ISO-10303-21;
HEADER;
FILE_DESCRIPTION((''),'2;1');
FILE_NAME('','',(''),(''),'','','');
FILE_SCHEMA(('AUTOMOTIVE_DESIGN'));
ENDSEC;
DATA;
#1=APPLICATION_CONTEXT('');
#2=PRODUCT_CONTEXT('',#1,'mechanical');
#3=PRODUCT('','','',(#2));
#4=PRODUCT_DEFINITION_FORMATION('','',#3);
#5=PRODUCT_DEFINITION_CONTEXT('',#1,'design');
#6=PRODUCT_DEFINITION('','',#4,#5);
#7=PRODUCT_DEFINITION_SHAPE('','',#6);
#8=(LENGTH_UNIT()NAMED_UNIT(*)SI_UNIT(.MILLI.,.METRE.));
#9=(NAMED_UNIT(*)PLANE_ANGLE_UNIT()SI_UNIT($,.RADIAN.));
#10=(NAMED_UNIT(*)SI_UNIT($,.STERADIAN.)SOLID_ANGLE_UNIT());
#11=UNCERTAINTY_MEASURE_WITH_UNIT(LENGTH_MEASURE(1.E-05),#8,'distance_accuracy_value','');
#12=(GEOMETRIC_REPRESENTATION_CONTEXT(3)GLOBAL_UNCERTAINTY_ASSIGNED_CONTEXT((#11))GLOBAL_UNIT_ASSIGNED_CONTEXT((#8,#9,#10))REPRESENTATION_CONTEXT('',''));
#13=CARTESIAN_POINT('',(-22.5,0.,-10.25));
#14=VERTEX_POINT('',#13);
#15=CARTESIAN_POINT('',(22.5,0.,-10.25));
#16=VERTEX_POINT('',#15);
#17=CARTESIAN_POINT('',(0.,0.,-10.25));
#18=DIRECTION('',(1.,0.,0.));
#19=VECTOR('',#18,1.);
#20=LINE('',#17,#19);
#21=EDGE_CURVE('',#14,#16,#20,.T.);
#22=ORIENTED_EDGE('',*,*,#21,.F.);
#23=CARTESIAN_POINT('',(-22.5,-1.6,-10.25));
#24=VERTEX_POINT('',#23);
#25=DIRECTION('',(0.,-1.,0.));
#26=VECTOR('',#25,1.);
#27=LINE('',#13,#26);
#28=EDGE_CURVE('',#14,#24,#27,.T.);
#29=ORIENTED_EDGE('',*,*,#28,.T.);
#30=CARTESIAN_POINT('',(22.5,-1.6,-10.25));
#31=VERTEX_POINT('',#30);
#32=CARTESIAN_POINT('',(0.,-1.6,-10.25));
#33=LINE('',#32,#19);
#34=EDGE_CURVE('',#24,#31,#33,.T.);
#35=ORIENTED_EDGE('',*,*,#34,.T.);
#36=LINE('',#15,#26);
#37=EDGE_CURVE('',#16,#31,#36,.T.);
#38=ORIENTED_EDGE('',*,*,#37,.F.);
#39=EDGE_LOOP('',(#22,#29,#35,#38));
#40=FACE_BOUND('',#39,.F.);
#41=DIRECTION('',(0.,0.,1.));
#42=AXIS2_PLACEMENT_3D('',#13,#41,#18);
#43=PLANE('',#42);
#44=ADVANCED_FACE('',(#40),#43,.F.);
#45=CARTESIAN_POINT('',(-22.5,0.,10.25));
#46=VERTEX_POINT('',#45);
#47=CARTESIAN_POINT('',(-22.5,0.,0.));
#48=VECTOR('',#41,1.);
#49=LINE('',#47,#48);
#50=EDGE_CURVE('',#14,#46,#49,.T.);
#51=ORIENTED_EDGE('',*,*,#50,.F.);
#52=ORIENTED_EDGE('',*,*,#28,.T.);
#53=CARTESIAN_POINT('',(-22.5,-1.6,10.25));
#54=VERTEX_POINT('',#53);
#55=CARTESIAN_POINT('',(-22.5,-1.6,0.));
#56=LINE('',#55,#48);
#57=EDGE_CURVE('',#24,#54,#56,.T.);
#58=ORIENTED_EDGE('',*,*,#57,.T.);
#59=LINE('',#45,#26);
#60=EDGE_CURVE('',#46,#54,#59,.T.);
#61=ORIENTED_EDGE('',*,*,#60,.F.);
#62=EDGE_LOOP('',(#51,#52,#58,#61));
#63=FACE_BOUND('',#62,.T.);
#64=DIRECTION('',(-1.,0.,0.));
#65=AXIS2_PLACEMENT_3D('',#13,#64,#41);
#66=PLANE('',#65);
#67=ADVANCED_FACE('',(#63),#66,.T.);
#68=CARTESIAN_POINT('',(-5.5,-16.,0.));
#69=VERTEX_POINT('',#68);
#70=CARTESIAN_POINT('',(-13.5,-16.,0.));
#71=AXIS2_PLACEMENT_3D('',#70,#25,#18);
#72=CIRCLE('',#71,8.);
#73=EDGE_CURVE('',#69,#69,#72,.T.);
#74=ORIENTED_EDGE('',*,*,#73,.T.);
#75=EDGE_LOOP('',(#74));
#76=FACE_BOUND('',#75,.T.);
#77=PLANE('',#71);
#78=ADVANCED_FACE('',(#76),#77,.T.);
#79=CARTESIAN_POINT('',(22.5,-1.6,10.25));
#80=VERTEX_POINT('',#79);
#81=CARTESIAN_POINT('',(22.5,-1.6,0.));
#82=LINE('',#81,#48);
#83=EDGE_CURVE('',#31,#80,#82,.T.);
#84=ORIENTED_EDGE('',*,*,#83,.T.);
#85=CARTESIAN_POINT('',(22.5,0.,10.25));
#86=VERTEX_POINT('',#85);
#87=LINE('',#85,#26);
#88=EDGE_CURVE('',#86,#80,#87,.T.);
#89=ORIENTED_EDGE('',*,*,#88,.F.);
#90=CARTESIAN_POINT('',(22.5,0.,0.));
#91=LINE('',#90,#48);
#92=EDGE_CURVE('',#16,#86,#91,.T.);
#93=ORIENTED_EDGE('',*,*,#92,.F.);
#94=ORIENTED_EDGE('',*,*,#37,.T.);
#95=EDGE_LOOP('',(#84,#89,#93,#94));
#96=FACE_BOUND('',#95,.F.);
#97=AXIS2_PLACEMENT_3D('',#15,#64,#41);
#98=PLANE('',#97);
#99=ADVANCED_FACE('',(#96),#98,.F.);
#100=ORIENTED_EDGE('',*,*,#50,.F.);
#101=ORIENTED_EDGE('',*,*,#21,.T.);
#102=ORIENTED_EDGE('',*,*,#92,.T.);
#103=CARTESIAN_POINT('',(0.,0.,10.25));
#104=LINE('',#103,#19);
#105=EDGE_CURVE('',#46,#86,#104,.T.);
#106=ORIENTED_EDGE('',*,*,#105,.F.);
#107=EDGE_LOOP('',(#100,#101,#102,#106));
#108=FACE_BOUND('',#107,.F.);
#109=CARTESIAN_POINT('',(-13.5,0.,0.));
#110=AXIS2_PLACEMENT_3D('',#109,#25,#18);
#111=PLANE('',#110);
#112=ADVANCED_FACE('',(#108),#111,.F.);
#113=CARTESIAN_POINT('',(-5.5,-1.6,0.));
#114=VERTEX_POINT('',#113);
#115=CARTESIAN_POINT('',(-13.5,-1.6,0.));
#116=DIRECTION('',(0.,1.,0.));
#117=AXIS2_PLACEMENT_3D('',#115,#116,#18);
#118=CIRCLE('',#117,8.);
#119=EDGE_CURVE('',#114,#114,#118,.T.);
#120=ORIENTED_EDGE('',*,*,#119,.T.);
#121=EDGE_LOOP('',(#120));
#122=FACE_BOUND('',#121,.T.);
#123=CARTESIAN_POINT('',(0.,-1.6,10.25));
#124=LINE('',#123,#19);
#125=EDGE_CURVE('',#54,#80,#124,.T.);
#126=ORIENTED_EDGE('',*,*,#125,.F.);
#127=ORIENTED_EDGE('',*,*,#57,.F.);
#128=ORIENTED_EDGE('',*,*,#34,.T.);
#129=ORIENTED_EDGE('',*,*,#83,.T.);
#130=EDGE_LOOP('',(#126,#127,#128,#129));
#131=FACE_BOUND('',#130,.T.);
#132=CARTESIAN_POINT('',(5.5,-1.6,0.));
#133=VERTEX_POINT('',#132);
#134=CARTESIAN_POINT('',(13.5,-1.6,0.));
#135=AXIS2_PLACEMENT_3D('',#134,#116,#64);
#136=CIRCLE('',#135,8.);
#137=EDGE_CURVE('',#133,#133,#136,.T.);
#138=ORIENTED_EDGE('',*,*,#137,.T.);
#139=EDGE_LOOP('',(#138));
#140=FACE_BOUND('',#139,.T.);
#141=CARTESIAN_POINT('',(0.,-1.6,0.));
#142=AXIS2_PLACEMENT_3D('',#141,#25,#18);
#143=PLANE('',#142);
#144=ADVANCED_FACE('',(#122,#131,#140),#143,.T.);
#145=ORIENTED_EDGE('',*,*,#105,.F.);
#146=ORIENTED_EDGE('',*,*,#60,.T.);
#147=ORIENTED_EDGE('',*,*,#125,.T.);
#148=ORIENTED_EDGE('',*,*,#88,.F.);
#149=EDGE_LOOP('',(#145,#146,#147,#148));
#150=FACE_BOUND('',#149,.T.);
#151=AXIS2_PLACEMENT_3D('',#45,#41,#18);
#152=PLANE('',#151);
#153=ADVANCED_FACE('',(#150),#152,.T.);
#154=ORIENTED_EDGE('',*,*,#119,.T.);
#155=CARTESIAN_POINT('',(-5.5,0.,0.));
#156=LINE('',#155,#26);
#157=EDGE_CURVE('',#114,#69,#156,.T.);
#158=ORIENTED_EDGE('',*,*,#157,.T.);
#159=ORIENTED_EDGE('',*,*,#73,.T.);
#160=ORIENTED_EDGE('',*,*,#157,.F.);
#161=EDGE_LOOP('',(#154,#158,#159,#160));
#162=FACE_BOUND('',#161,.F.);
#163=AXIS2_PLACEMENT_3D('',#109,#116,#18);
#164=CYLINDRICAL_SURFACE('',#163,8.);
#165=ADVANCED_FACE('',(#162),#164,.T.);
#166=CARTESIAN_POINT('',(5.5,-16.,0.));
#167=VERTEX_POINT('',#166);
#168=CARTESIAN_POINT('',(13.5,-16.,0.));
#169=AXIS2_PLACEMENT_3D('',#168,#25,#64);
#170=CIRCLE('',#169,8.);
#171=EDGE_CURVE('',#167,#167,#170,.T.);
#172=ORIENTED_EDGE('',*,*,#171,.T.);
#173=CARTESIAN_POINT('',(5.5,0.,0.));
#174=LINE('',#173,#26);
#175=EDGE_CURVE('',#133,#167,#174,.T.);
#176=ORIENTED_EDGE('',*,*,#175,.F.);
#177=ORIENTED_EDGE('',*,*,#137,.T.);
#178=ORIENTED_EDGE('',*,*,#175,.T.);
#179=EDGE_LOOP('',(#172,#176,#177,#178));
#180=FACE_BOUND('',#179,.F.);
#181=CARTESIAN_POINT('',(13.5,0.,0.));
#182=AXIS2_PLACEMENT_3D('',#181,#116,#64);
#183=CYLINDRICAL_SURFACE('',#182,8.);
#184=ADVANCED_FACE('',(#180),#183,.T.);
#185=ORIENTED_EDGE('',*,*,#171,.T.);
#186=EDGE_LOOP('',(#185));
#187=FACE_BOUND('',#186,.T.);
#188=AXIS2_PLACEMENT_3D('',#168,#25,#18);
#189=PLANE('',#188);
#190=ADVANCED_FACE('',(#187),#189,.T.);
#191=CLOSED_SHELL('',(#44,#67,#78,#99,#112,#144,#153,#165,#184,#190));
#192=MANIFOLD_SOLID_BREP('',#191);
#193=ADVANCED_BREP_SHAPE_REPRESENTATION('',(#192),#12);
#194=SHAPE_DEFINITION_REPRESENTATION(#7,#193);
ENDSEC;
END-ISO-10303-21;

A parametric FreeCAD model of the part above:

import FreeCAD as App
import Part
import Sketcher
from FreeCAD import Vector


def add_polygon(sketch, points):
    """Adds a closed chain of lines whose ends are joined by coincident constraints."""
    first, n = sketch.GeometryCount, len(points)
    for a, b in zip(points, points[1:] + points[:1]):
        sketch.addGeometry(Part.LineSegment(App.Vector(*a, 0), App.Vector(*b, 0)), False)
    for i in range(n):
        sketch.addConstraint(Sketcher.Constraint("Coincident", first + i, 2, first + (i + 1) % n, 1))

doc = App.newDocument("Part")
body = doc.addObject("PartDesign::Body", "Body")

# Sketch on XZ plane
sketch1 = body.newObject("Sketcher::SketchObject", "Sketch")
sketch1.AttachmentSupport = (doc.getObject("XZ_Plane"), [""])
sketch1.MapMode = "FlatFace"
add_polygon(sketch1, [(-22, 10), (-22, -10), (22, -10), (22, 10)])  # lines 0-3
sketch1.addConstraint([
    Sketcher.Constraint("Vertical", 0),
    Sketcher.Constraint("Horizontal", 1),
    Sketcher.Constraint("Vertical", 2),
    Sketcher.Constraint("Horizontal", 3),
    Sketcher.Constraint("Symmetric", 0, 2, 2, 2, -1, 1),
    Sketcher.Constraint("DistanceX", 1, 1, 1, 2, 45.0),
    Sketcher.Constraint("DistanceY", 0, 2, 0, 1, 20.5),
])
pad1 = body.newObject("PartDesign::Pad", "Pad")
pad1.Profile = sketch1
pad1.Length = 1.6

# Sketch on XZ plane
sketch2 = body.newObject("Sketcher::SketchObject", "Sketch001")
sketch2.AttachmentSupport = (doc.getObject("XZ_Plane"), [""])
sketch2.MapMode = "FlatFace"
sketch2.addGeometry([
    Part.Circle(Vector(-14, 0, 0), Vector(0, 0, 1), 8),
    Part.Circle(Vector(14, 0, 0), Vector(0, 0, 1), 8),
], False)
sketch2.addConstraint([
    Sketcher.Constraint("Equal", 0, 1),
    Sketcher.Constraint("Symmetric", 0, 3, 1, 3, -1, 1),
    Sketcher.Constraint("PointOnObject", 0, 3, -1),
    Sketcher.Constraint("Diameter", 0, 16.0),
    Sketcher.Constraint("DistanceX", 0, 3, 1, 3, 27.0),
])
pad2 = body.newObject("PartDesign::Pad", "Pad001")
pad2.Profile = sketch2
pad2.Length = 16

doc.recompute()
